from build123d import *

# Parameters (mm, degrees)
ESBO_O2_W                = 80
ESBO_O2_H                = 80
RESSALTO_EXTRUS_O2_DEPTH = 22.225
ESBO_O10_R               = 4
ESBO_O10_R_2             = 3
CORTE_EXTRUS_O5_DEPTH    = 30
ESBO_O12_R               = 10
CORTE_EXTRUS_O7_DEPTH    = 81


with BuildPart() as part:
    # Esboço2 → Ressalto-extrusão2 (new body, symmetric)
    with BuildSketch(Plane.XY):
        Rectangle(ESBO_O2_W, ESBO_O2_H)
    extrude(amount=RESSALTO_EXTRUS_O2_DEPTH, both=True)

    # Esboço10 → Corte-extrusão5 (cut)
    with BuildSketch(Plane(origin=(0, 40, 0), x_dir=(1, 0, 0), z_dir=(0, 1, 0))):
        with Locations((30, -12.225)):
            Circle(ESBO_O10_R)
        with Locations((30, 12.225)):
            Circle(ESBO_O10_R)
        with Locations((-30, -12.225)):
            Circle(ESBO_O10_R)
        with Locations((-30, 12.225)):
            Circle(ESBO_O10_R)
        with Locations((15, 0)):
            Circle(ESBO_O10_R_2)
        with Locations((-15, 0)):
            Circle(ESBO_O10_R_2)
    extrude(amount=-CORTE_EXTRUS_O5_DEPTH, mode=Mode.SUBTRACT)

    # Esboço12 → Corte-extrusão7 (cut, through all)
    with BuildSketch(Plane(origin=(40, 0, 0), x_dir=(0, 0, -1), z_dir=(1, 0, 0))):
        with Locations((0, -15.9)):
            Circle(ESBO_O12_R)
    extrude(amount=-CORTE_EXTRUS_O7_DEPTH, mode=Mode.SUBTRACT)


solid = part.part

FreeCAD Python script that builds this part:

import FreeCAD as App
import Part
import Sketcher

doc = App.newDocument("Part")
params = doc.addObject("Spreadsheet::Sheet", "Params")
for row, (alias, value) in enumerate([
    ("sketch1_width", "80 mm"),
    ("pad1_length", "44.45 mm"),
    ("sketch2_diameter", "8 mm"),
    ("sketch2_diameter2", "6 mm"),
    ("pocket1_length", "30 mm"),
    ("sketch3_diameter", "20 mm"),
], start=1):
    params.set(f"A{row}", alias)
    params.set(f"B{row}", "=" + value)
    params.setAlias(f"B{row}", alias)

body = doc.addObject("PartDesign::Body", "Body")

sketch1 = body.newObject("Sketcher::SketchObject", "Sketch")
sketch1.AttachmentSupport = (doc.getObject("XY_Plane"), [""])
sketch1.MapMode = "FlatFace"
sketch1.addGeometry(Part.LineSegment(App.Vector(-40, 40, 0), App.Vector(-40, -40, 0)), False)
sketch1.addGeometry(Part.LineSegment(App.Vector(-40, -40, 0), App.Vector(40, -40, 0)), False)
sketch1.addGeometry(Part.LineSegment(App.Vector(40, -40, 0), App.Vector(40, 40, 0)), False)
sketch1.addGeometry(Part.LineSegment(App.Vector(40, 40, 0), App.Vector(-40, 40, 0)), False)
sketch1.addConstraint(Sketcher.Constraint("Coincident", 0, 2, 1, 1))
sketch1.addConstraint(Sketcher.Constraint("Coincident", 1, 2, 2, 1))
sketch1.addConstraint(Sketcher.Constraint("Coincident", 2, 2, 3, 1))
sketch1.addConstraint(Sketcher.Constraint("Coincident", 3, 2, 0, 1))
sketch1.addConstraint(Sketcher.Constraint("Vertical", 0))
sketch1.addConstraint(Sketcher.Constraint("Horizontal", 1))
sketch1.addConstraint(Sketcher.Constraint("Vertical", 2))
sketch1.addConstraint(Sketcher.Constraint("Horizontal", 3))
sketch1.addConstraint(Sketcher.Constraint("Symmetric", 0, 2, 2, 2, -1, 1))
sketch1.addConstraint(Sketcher.Constraint("Equal", 3, 0))
sketch1.addConstraint(Sketcher.Constraint("DistanceX", 1, 1, 1, 2, 80.0))
sketch1.setExpression("Constraints[10]", "Params.sketch1_width")
pad1 = body.newObject("PartDesign::Pad", "Pad")
pad1.Profile = sketch1
pad1.setExpression("Length", "Params.pad1_length")
pad1.Midplane = True

sketch2 = body.newObject("Sketcher::SketchObject", "Sketch001")
sketch2.AttachmentSupport = (doc.getObject("XZ_Plane"), [""])
sketch2.MapMode = "FlatFace"
sketch2.AttachmentOffset = App.Placement(App.Vector(0, 0, -40), App.Rotation())
sketch2.addGeometry(Part.Circle(App.Vector(30, 12.2, 0), App.Vector(0, 0, 1), 4), False)
sketch2.addGeometry(Part.Circle(App.Vector(30, -12.2, 0), App.Vector(0, 0, 1), 4), False)
sketch2.addGeometry(Part.Circle(App.Vector(-30, 12.2, 0), App.Vector(0, 0, 1), 4), False)
sketch2.addGeometry(Part.Circle(App.Vector(-30, -12.2, 0), App.Vector(0, 0, 1), 4), False)
sketch2.addGeometry(Part.Circle(App.Vector(15, 0, 0), App.Vector(0, 0, 1), 3), False)
sketch2.addGeometry(Part.Circle(App.Vector(-15, 0, 0), App.Vector(0, 0, 1), 3), False)
sketch2.addConstraint(Sketcher.Constraint("Equal", 0, 1))
sketch2.addConstraint(Sketcher.Constraint("Equal", 1, 2))
sketch2.addConstraint(Sketcher.Constraint("Equal", 2, 3))
sketch2.addConstraint(Sketcher.Constraint("Equal", 4, 5))
sketch2.addConstraint(Sketcher.Constraint("Symmetric", 1, 3, 2, 3, -1, 1))
sketch2.addConstraint(Sketcher.Constraint("Symmetric", 0, 3, 3, 3, -1, 1))
sketch2.addConstraint(Sketcher.Constraint("Symmetric", 4, 3, 5, 3, -1, 1))
sketch2.addConstraint(Sketcher.Constraint("Symmetric", 0, 3, 2, 3, -2))
sketch2.addConstraint(Sketcher.Constraint("PointOnObject", 4, 3, -1))
sketch2.addConstraint(Sketcher.Constraint("Diameter", 0, 8.0))
sketch2.addConstraint(Sketcher.Constraint("Diameter", 4, 6.0))
sketch2.addConstraint(Sketcher.Constraint("DistanceX", -1, 1, 0, 3, 30.0))
sketch2.addConstraint(Sketcher.Constraint("DistanceX", -1, 1, 4, 3, 15.0))
sketch2.addConstraint(Sketcher.Constraint("DistanceY", 1, 3, 0, 3, 24.45))
sketch2.setExpression("Constraints[9]", "Params.sketch2_diameter")
sketch2.setExpression("Constraints[10]", "Params.sketch2_diameter2")
pocket1 = body.newObject("PartDesign::Pocket", "Pocket")
pocket1.Profile = sketch2
pocket1.setExpression("Length", "Params.pocket1_length")
pocket1.Reversed = True

sketch3 = body.newObject("Sketcher::SketchObject", "Sketch002")
sketch3.AttachmentSupport = (doc.getObject("YZ_Plane"), [""])
sketch3.MapMode = "FlatFace"
sketch3.AttachmentOffset = App.Placement(App.Vector(0, 0, 40), App.Rotation())
sketch3.addGeometry(Part.Circle(App.Vector(-16, 0, 0), App.Vector(0, 0, 1), 10), False)
sketch3.addConstraint(Sketcher.Constraint("PointOnObject", 0, 3, -1))
sketch3.addConstraint(Sketcher.Constraint("Diameter", 0, 20.0))
sketch3.addConstraint(Sketcher.Constraint("DistanceX", 0, 3, -1, 1, 15.9))
sketch3.setExpression("Constraints[1]", "Params.sketch3_diameter")
pocket2 = body.newObject("PartDesign::Pocket", "Pocket001")
pocket2.Profile = sketch3
pocket2.Type = "ThroughAll"

doc.recompute()
